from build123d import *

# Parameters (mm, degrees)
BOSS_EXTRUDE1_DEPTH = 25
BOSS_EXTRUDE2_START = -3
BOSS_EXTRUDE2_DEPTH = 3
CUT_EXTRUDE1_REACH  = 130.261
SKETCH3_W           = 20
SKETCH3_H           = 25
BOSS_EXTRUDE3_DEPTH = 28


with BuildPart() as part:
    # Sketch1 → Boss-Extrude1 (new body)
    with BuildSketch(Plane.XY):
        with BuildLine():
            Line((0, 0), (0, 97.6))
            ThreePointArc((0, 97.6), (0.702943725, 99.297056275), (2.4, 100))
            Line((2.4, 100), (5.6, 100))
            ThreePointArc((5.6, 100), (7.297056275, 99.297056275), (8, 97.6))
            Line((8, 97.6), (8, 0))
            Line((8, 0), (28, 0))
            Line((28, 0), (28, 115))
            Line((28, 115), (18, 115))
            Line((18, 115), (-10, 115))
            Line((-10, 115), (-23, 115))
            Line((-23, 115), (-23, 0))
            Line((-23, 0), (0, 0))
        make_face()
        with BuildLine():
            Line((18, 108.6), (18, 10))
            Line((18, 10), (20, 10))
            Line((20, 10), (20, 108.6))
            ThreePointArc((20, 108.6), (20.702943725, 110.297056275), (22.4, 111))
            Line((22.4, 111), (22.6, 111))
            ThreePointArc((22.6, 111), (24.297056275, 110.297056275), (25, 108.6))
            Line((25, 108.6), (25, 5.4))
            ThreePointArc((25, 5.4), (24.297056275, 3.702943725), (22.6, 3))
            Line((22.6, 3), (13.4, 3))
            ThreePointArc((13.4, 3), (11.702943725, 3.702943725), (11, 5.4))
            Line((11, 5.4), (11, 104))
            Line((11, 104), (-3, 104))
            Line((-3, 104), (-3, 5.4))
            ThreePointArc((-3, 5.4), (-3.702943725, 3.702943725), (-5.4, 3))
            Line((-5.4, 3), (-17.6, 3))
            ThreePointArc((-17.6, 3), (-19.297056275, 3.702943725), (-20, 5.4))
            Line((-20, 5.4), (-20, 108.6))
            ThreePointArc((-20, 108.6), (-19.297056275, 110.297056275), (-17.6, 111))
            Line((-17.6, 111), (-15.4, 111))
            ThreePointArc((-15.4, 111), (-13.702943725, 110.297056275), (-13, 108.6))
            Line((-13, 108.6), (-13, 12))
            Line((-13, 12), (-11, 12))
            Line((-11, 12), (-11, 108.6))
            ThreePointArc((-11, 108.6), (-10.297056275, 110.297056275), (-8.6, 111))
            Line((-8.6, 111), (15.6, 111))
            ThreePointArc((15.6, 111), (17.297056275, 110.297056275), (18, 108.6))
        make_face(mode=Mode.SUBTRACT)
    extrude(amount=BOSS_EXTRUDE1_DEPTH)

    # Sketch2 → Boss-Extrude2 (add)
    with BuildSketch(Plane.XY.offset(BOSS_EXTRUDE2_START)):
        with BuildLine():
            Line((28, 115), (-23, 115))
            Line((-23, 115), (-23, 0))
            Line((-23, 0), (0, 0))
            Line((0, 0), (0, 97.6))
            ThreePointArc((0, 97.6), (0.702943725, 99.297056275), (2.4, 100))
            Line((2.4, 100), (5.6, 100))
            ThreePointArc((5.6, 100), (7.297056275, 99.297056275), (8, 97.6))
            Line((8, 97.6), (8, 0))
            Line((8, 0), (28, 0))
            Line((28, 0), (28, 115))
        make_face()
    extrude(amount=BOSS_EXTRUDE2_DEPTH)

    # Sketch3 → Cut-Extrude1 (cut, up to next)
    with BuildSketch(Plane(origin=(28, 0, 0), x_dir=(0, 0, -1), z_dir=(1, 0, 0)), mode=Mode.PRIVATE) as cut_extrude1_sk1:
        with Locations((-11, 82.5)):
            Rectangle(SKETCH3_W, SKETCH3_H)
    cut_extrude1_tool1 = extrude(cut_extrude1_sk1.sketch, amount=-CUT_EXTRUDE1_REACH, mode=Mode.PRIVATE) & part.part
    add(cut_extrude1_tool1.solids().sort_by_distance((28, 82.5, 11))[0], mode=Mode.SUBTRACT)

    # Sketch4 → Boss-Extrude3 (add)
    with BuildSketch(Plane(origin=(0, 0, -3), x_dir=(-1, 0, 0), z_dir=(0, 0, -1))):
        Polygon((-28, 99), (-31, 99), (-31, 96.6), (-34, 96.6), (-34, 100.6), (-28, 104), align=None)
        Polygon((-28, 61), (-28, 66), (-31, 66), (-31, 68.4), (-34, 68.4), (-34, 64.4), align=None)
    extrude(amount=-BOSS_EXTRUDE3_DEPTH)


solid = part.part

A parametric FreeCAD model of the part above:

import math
import FreeCAD as App
import Part
import Sketcher

doc = App.newDocument("Part")
body = doc.addObject("PartDesign::Body", "Body")

sketch1 = doc.addObject("Sketcher::SketchObject", "Sketch")
body.addObject(sketch1)
sketch1.AttachmentSupport = (doc.XY_Plane, [""])
sketch1.MapMode = "FlatFace"
sketch1.addGeometry(Part.LineSegment(App.Vector(0, 0, 0), App.Vector(0, 97.6, 0)), False)
sketch1.addGeometry(Part.ArcOfCircle(Part.Circle(App.Vector(2.4, 97.6, 0), App.Vector(0, 0, 1), 2.4), math.radians(90), math.radians(180)), False)
sketch1.addGeometry(Part.LineSegment(App.Vector(2.4, 100, 0), App.Vector(5.6, 100, 0)), False)
sketch1.addGeometry(Part.ArcOfCircle(Part.Circle(App.Vector(5.6, 97.6, 0), App.Vector(0, 0, 1), 2.4), math.radians(0), math.radians(90)), False)
sketch1.addGeometry(Part.LineSegment(App.Vector(8, 97.6, 0), App.Vector(8, 0, 0)), False)
sketch1.addGeometry(Part.LineSegment(App.Vector(8, 0, 0), App.Vector(28, 0, 0)), False)
sketch1.addGeometry(Part.LineSegment(App.Vector(28, 0, 0), App.Vector(28, 115, 0)), False)
sketch1.addGeometry(Part.LineSegment(App.Vector(28, 115, 0), App.Vector(-23, 115, 0)), False)
sketch1.addGeometry(Part.LineSegment(App.Vector(-23, 115, 0), App.Vector(-23, 0, 0)), False)
sketch1.addGeometry(Part.LineSegment(App.Vector(-23, 0, 0), App.Vector(0, 0, 0)), False)
sketch1.addGeometry(Part.ArcOfCircle(Part.Circle(App.Vector(15.6, 108.6, 0), App.Vector(0, 0, 1), 2.4), math.radians(0), math.radians(90)), False)
sketch1.addGeometry(Part.LineSegment(App.Vector(18, 108.6, 0), App.Vector(18, 10, 0)), False)
sketch1.addGeometry(Part.LineSegment(App.Vector(18, 10, 0), App.Vector(20, 10, 0)), False)
sketch1.addGeometry(Part.LineSegment(App.Vector(20, 10, 0), App.Vector(20, 108.6, 0)), False)
sketch1.addGeometry(Part.ArcOfCircle(Part.Circle(App.Vector(22.4, 108.6, 0), App.Vector(0, 0, 1), 2.4), math.radians(90), math.radians(180)), False)
sketch1.addGeometry(Part.LineSegment(App.Vector(22.4, 111, 0), App.Vector(22.6, 111, 0)), False)
sketch1.addGeometry(Part.ArcOfCircle(Part.Circle(App.Vector(22.6, 108.6, 0), App.Vector(0, 0, 1), 2.4), math.radians(0), math.radians(90)), False)
sketch1.addGeometry(Part.LineSegment(App.Vector(25, 108.6, 0), App.Vector(25, 5.4, 0)), False)
sketch1.addGeometry(Part.ArcOfCircle(Part.Circle(App.Vector(22.6, 5.4, 0), App.Vector(0, 0, 1), 2.4), math.radians(-90), math.radians(0)), False)
sketch1.addGeometry(Part.LineSegment(App.Vector(22.6, 3, 0), App.Vector(13.4, 3, 0)), False)
sketch1.addGeometry(Part.ArcOfCircle(Part.Circle(App.Vector(13.4, 5.4, 0), App.Vector(0, 0, 1), 2.4), math.radians(180), math.radians(270)), False)
sketch1.addGeometry(Part.LineSegment(App.Vector(11, 5.4, 0), App.Vector(11, 104, 0)), False)
sketch1.addGeometry(Part.LineSegment(App.Vector(11, 104, 0), App.Vector(-3, 104, 0)), False)
sketch1.addGeometry(Part.LineSegment(App.Vector(-3, 104, 0), App.Vector(-3, 5.4, 0)), False)
sketch1.addGeometry(Part.ArcOfCircle(Part.Circle(App.Vector(-5.4, 5.4, 0), App.Vector(0, 0, 1), 2.4), math.radians(-90), math.radians(0)), False)
sketch1.addGeometry(Part.LineSegment(App.Vector(-5.4, 3, 0), App.Vector(-17.6, 3, 0)), False)
sketch1.addGeometry(Part.ArcOfCircle(Part.Circle(App.Vector(-17.6, 5.4, 0), App.Vector(0, 0, 1), 2.4), math.radians(180), math.radians(270)), False)
sketch1.addGeometry(Part.LineSegment(App.Vector(-20, 5.4, 0), App.Vector(-20, 108.6, 0)), False)
sketch1.addGeometry(Part.ArcOfCircle(Part.Circle(App.Vector(-17.6, 108.6, 0), App.Vector(0, 0, 1), 2.4), math.radians(90), math.radians(180)), False)
sketch1.addGeometry(Part.LineSegment(App.Vector(-17.6, 111, 0), App.Vector(-15.4, 111, 0)), False)
sketch1.addGeometry(Part.ArcOfCircle(Part.Circle(App.Vector(-15.4, 108.6, 0), App.Vector(0, 0, 1), 2.4), math.radians(0), math.radians(90)), False)
sketch1.addGeometry(Part.LineSegment(App.Vector(-13, 108.6, 0), App.Vector(-13, 12, 0)), False)
sketch1.addGeometry(Part.LineSegment(App.Vector(-13, 12, 0), App.Vector(-11, 12, 0)), False)
sketch1.addGeometry(Part.LineSegment(App.Vector(-11, 12, 0), App.Vector(-11, 108.6, 0)), False)
sketch1.addGeometry(Part.ArcOfCircle(Part.Circle(App.Vector(-8.6, 108.6, 0), App.Vector(0, 0, 1), 2.4), math.radians(90), math.radians(180)), False)
sketch1.addGeometry(Part.LineSegment(App.Vector(-8.6, 111, 0), App.Vector(15.6, 111, 0)), False)
sketch1.addConstraint(Sketcher.Constraint("Tangent", 0, 2, 1, 2))
sketch1.addConstraint(Sketcher.Constraint("Tangent", 1, 1, 2, 1))
sketch1.addConstraint(Sketcher.Constraint("Tangent", 2, 2, 3, 2))
sketch1.addConstraint(Sketcher.Constraint("Tangent", 3, 1, 4, 1))
sketch1.addConstraint(Sketcher.Constraint("Coincident", 4, 2, 5, 1))
sketch1.addConstraint(Sketcher.Constraint("Coincident", 5, 2, 6, 1))
sketch1.addConstraint(Sketcher.Constraint("Coincident", 6, 2, 7, 1))
sketch1.addConstraint(Sketcher.Constraint("Coincident", 7, 2, 8, 1))
sketch1.addConstraint(Sketcher.Constraint("Coincident", 8, 2, 9, 1))
sketch1.addConstraint(Sketcher.Constraint("Coincident", 9, 2, 0, 1))
sketch1.addConstraint(Sketcher.Constraint("Tangent", 10, 1, 11, 1))
sketch1.addConstraint(Sketcher.Constraint("Coincident", 11, 2, 12, 1))
sketch1.addConstraint(Sketcher.Constraint("Coincident", 12, 2, 13, 1))
sketch1.addConstraint(Sketcher.Constraint("Tangent", 13, 2, 14, 2))
sketch1.addConstraint(Sketcher.Constraint("Tangent", 14, 1, 15, 1))
sketch1.addConstraint(Sketcher.Constraint("Tangent", 15, 2, 16, 2))
sketch1.addConstraint(Sketcher.Constraint("Tangent", 16, 1, 17, 1))
sketch1.addConstraint(Sketcher.Constraint("Tangent", 17, 2, 18, 2))
sketch1.addConstraint(Sketcher.Constraint("Tangent", 18, 1, 19, 1))
sketch1.addConstraint(Sketcher.Constraint("Tangent", 19, 2, 20, 2))
sketch1.addConstraint(Sketcher.Constraint("Tangent", 20, 1, 21, 1))
sketch1.addConstraint(Sketcher.Constraint("Coincident", 21, 2, 22, 1))
sketch1.addConstraint(Sketcher.Constraint("Coincident", 22, 2, 23, 1))
sketch1.addConstraint(Sketcher.Constraint("Tangent", 23, 2, 24, 2))
sketch1.addConstraint(Sketcher.Constraint("Tangent", 24, 1, 25, 1))
sketch1.addConstraint(Sketcher.Constraint("Tangent", 25, 2, 26, 2))
sketch1.addConstraint(Sketcher.Constraint("Tangent", 26, 1, 27, 1))
sketch1.addConstraint(Sketcher.Constraint("Tangent", 27, 2, 28, 2))
sketch1.addConstraint(Sketcher.Constraint("Tangent", 28, 1, 29, 1))
sketch1.addConstraint(Sketcher.Constraint("Tangent", 29, 2, 30, 2))
sketch1.addConstraint(Sketcher.Constraint("Tangent", 30, 1, 31, 1))
sketch1.addConstraint(Sketcher.Constraint("Coincident", 31, 2, 32, 1))
sketch1.addConstraint(Sketcher.Constraint("Coincident", 32, 2, 33, 1))
sketch1.addConstraint(Sketcher.Constraint("Tangent", 33, 2, 34, 2))
sketch1.addConstraint(Sketcher.Constraint("Tangent", 34, 1, 35, 1))
sketch1.addConstraint(Sketcher.Constraint("Tangent", 35, 2, 10, 2))
sketch1.addConstraint(Sketcher.Constraint("Vertical", 0))
sketch1.addConstraint(Sketcher.Constraint("Horizontal", 2))
sketch1.addConstraint(Sketcher.Constraint("Vertical", 4))
sketch1.addConstraint(Sketcher.Constraint("Horizontal", 5))
sketch1.addConstraint(Sketcher.Constraint("Vertical", 6))
sketch1.addConstraint(Sketcher.Constraint("Horizontal", 7))
sketch1.addConstraint(Sketcher.Constraint("Vertical", 8))
sketch1.addConstraint(Sketcher.Constraint("Horizontal", 9))
sketch1.addConstraint(Sketcher.Constraint("Vertical", 11))
sketch1.addConstraint(Sketcher.Constraint("Horizontal", 12))
sketch1.addConstraint(Sketcher.Constraint("Vertical", 13))
sketch1.addConstraint(Sketcher.Constraint("Horizontal", 15))
sketch1.addConstraint(Sketcher.Constraint("Vertical", 17))
sketch1.addConstraint(Sketcher.Constraint("Horizontal", 19))
sketch1.addConstraint(Sketcher.Constraint("Vertical", 21))
sketch1.addConstraint(Sketcher.Constraint("Horizontal", 22))
sketch1.addConstraint(Sketcher.Constraint("Vertical", 23))
sketch1.addConstraint(Sketcher.Constraint("Horizontal", 25))
sketch1.addConstraint(Sketcher.Constraint("Vertical", 27))
sketch1.addConstraint(Sketcher.Constraint("Horizontal", 29))
sketch1.addConstraint(Sketcher.Constraint("Vertical", 31))
sketch1.addConstraint(Sketcher.Constraint("Horizontal", 32))
sketch1.addConstraint(Sketcher.Constraint("Vertical", 33))
sketch1.addConstraint(Sketcher.Constraint("Horizontal", 35))
sketch1.addConstraint(Sketcher.Constraint("Coincident", 9, 2, -1, 1))
sketch1.addConstraint(Sketcher.Constraint("Equal", 1, 3))
sketch1.addConstraint(Sketcher.Constraint("Equal", 3, 10))
sketch1.addConstraint(Sketcher.Constraint("Equal", 10, 14))
sketch1.addConstraint(Sketcher.Constraint("Equal", 14, 16))
sketch1.addConstraint(Sketcher.Constraint("Equal", 16, 18))
sketch1.addConstraint(Sketcher.Constraint("Equal", 18, 20))
sketch1.addConstraint(Sketcher.Constraint("Equal", 20, 24))
sketch1.addConstraint(Sketcher.Constraint("Equal", 24, 26))
sketch1.addConstraint(Sketcher.Constraint("Equal", 26, 28))
sketch1.addConstraint(Sketcher.Constraint("Equal", 28, 30))
sketch1.addConstraint(Sketcher.Constraint("Equal", 30, 34))
sketch1.addConstraint(Sketcher.Constraint("Symmetric", 13, 2, 27, 2, -2))
sketch1.addConstraint(Sketcher.Constraint("PointOnObject", 4, 2, -1))
sketch1.addConstraint(Sketcher.Constraint("Horizontal", 10, 3, 14, 3))
sketch1.addConstraint(Sketcher.Constraint("Horizontal", 20, 3, 24, 3))
sketch1.addConstraint(Sketcher.Constraint("Equal", 12, 32))
sketch1.addConstraint(Sketcher.Constraint("Equal", 13, 21))
sketch1.addConstraint(Sketcher.Constraint("Radius", 1, 2.4))
sketch1.addConstraint(Sketcher.Constraint("DistanceX", 5, 1, 5, 2, 20.0))
sketch1.addConstraint(Sketcher.Constraint("DistanceX", 7, 2, 7, 1, 51.0))
sketch1.addConstraint(Sketcher.Constraint("DistanceX", 9, 1, 9, 2, 23.0))
sketch1.addConstraint(Sketcher.Constraint("DistanceX", 12, 1, 12, 2, 2.0))
sketch1.addConstraint(Sketcher.Constraint("DistanceX", 22, 2, 22, 1, 14.0))
sketch1.addConstraint(Sketcher.Constraint("DistanceY", 6, 1, 6, 2, 115.0))
sketch1.addConstraint(Sketcher.Constraint("DistanceX", 15, 1, 15, 2, 0.2))
sketch1.addConstraint(Sketcher.Constraint("DistanceX", 19, 2, 19, 1, 9.2))
sketch1.addConstraint(Sketcher.Constraint("DistanceX", 25, 2, 25, 1, 12.2))
sketch1.addConstraint(Sketcher.Constraint("DistanceX", 29, 1, 29, 2, 2.2))
sketch1.addConstraint(Sketcher.Constraint("DistanceY", 0, 1, 0, 2, 97.6))
sketch1.addConstraint(Sketcher.Constraint("DistanceY", 11, 2, 11, 1, 98.6))
sketch1.addConstraint(Sketcher.Constraint("DistanceY", 17, 2, 17, 1, 103.2))
sketch1.addConstraint(Sketcher.Constraint("DistanceY", 31, 2, 31, 1, 96.6))
sketch1.addConstraint(Sketcher.Constraint("DistanceY", -1, 1, 11, 2, 10.0))
pad1 = doc.addObject("PartDesign::Pad", "Pad")
body.addObject(pad1)
pad1.Profile = sketch1
pad1.Length = 25

sketch2 = doc.addObject("Sketcher::SketchObject", "Sketch001")
body.addObject(sketch2)
sketch2.AttachmentSupport = (doc.XY_Plane, [""])
sketch2.MapMode = "FlatFace"
sketch2.AttachmentOffset = App.Placement(App.Vector(0, 0, -3), App.Rotation())
sketch2.addGeometry(Part.LineSegment(App.Vector(28, 115, 0), App.Vector(-23, 115, 0)), False)
sketch2.addGeometry(Part.LineSegment(App.Vector(-23, 115, 0), App.Vector(-23, 0, 0)), False)
sketch2.addGeometry(Part.LineSegment(App.Vector(-23, 0, 0), App.Vector(0, 0, 0)), False)
sketch2.addGeometry(Part.LineSegment(App.Vector(0, 0, 0), App.Vector(0, 97.6, 0)), False)
sketch2.addGeometry(Part.ArcOfCircle(Part.Circle(App.Vector(2.4, 97.6, 0), App.Vector(0, 0, 1), 2.4), math.radians(90), math.radians(180)), False)
sketch2.addGeometry(Part.LineSegment(App.Vector(2.4, 100, 0), App.Vector(5.6, 100, 0)), False)
sketch2.addGeometry(Part.ArcOfCircle(Part.Circle(App.Vector(5.6, 97.6, 0), App.Vector(0, 0, 1), 2.4), math.radians(0), math.radians(90)), False)
sketch2.addGeometry(Part.LineSegment(App.Vector(8, 97.6, 0), App.Vector(8, 0, 0)), False)
sketch2.addGeometry(Part.LineSegment(App.Vector(8, 0, 0), App.Vector(28, 0, 0)), False)
sketch2.addGeometry(Part.LineSegment(App.Vector(28, 0, 0), App.Vector(28, 115, 0)), False)
sketch2.addConstraint(Sketcher.Constraint("Coincident", 0, 2, 1, 1))
sketch2.addConstraint(Sketcher.Constraint("Coincident", 1, 2, 2, 1))
sketch2.addConstraint(Sketcher.Constraint("Coincident", 2, 2, 3, 1))
sketch2.addConstraint(Sketcher.Constraint("Tangent", 3, 2, 4, 2))
sketch2.addConstraint(Sketcher.Constraint("Tangent", 4, 1, 5, 1))
sketch2.addConstraint(Sketcher.Constraint("Tangent", 5, 2, 6, 2))
sketch2.addConstraint(Sketcher.Constraint("Tangent", 6, 1, 7, 1))
sketch2.addConstraint(Sketcher.Constraint("Coincident", 7, 2, 8, 1))
sketch2.addConstraint(Sketcher.Constraint("Coincident", 8, 2, 9, 1))
sketch2.addConstraint(Sketcher.Constraint("Coincident", 9, 2, 0, 1))
sketch2.addConstraint(Sketcher.Constraint("Horizontal", 0))
sketch2.addConstraint(Sketcher.Constraint("Vertical", 1))
sketch2.addConstraint(Sketcher.Constraint("Horizontal", 2))
sketch2.addConstraint(Sketcher.Constraint("Vertical", 3))
sketch2.addConstraint(Sketcher.Constraint("Horizontal", 5))
sketch2.addConstraint(Sketcher.Constraint("Vertical", 7))
sketch2.addConstraint(Sketcher.Constraint("Horizontal", 8))
sketch2.addConstraint(Sketcher.Constraint("Vertical", 9))
sketch2.addConstraint(Sketcher.Constraint("Coincident", 2, 2, -1, 1))
sketch2.addConstraint(Sketcher.Constraint("Equal", 4, 6))
sketch2.addConstraint(Sketcher.Constraint("PointOnObject", 7, 2, -1))
sketch2.addConstraint(Sketcher.Constraint("Radius", 4, 2.4))
sketch2.addConstraint(Sketcher.Constraint("DistanceX", 0, 2, 0, 1, 51.0))
sketch2.addConstraint(Sketcher.Constraint("DistanceX", 2, 1, 2, 2, 23.0))
sketch2.addConstraint(Sketcher.Constraint("DistanceX", 8, 1, 8, 2, 20.0))
sketch2.addConstraint(Sketcher.Constraint("DistanceY", 1, 2, 1, 1, 115.0))
sketch2.addConstraint(Sketcher.Constraint("DistanceY", 3, 1, 3, 2, 97.6))
pad2 = doc.addObject("PartDesign::Pad", "Pad001")
body.addObject(pad2)
pad2.Profile = sketch2
pad2.Length = 3

sketch3 = doc.addObject("Sketcher::SketchObject", "Sketch002")
body.addObject(sketch3)
sketch3.AttachmentSupport = (doc.YZ_Plane, [""])
sketch3.MapMode = "FlatFace"
sketch3.AttachmentOffset = App.Placement(App.Vector(0, 0, 28), App.Rotation())
sketch3.addGeometry(Part.LineSegment(App.Vector(95, 21, 0), App.Vector(70, 21, 0)), False)
sketch3.addGeometry(Part.LineSegment(App.Vector(70, 21, 0), App.Vector(70, 1, 0)), False)
sketch3.addGeometry(Part.LineSegment(App.Vector(70, 1, 0), App.Vector(95, 1, 0)), False)
sketch3.addGeometry(Part.LineSegment(App.Vector(95, 1, 0), App.Vector(95, 21, 0)), False)
sketch3.addConstraint(Sketcher.Constraint("Coincident", 0, 2, 1, 1))
sketch3.addConstraint(Sketcher.Constraint("Coincident", 1, 2, 2, 1))
sketch3.addConstraint(Sketcher.Constraint("Coincident", 2, 2, 3, 1))
sketch3.addConstraint(Sketcher.Constraint("Coincident", 3, 2, 0, 1))
sketch3.addConstraint(Sketcher.Constraint("Horizontal", 0))
sketch3.addConstraint(Sketcher.Constraint("Vertical", 1))
sketch3.addConstraint(Sketcher.Constraint("Horizontal", 2))
sketch3.addConstraint(Sketcher.Constraint("Vertical", 3))
sketch3.addConstraint(Sketcher.Constraint("DistanceX", 0, 2, 0, 1, 25.0))
sketch3.addConstraint(Sketcher.Constraint("DistanceY", 1, 2, 1, 1, 20.0))
sketch3.addConstraint(Sketcher.Constraint("DistanceX", -1, 1, 0, 2, 70.0))
sketch3.addConstraint(Sketcher.Constraint("DistanceY", -1, 1, 0, 2, 21.0))
pocket1 = doc.addObject("PartDesign::Pocket", "Pocket")
body.addObject(pocket1)
pocket1.Profile = sketch3
pocket1.Type = "UpToFirst"

sketch4 = doc.addObject("Sketcher::SketchObject", "Sketch003")
body.addObject(sketch4)
sketch4.AttachmentSupport = (doc.XY_Plane, [""])
sketch4.MapMode = "FlatFace"
sketch4.AttachmentOffset = App.Placement(App.Vector(0, 0, -3), App.Rotation())
sketch4.addGeometry(Part.LineSegment(App.Vector(31, 99, 0), App.Vector(28, 99, 0)), False)
sketch4.addGeometry(Part.LineSegment(App.Vector(28, 99, 0), App.Vector(28, 104, 0)), False)
sketch4.addGeometry(Part.LineSegment(App.Vector(28, 104, 0), App.Vector(34, 100.6, 0)), False)
sketch4.addGeometry(Part.LineSegment(App.Vector(34, 100.6, 0), App.Vector(34, 96.6, 0)), False)
sketch4.addGeometry(Part.LineSegment(App.Vector(34, 96.6, 0), App.Vector(31, 96.6, 0)), False)
sketch4.addGeometry(Part.LineSegment(App.Vector(31, 96.6, 0), App.Vector(31, 99, 0)), False)
sketch4.addGeometry(Part.LineSegment(App.Vector(28, 61, 0), App.Vector(28, 66, 0)), False)
sketch4.addGeometry(Part.LineSegment(App.Vector(28, 66, 0), App.Vector(31, 66, 0)), False)
sketch4.addGeometry(Part.LineSegment(App.Vector(31, 66, 0), App.Vector(31, 68.4, 0)), False)
sketch4.addGeometry(Part.LineSegment(App.Vector(31, 68.4, 0), App.Vector(34, 68.4, 0)), False)
sketch4.addGeometry(Part.LineSegment(App.Vector(34, 68.4, 0), App.Vector(34, 64.4, 0)), False)
sketch4.addGeometry(Part.LineSegment(App.Vector(34, 64.4, 0), App.Vector(28, 61, 0)), False)
sketch4.addConstraint(Sketcher.Constraint("Coincident", 0, 2, 1, 1))
sketch4.addConstraint(Sketcher.Constraint("Coincident", 1, 2, 2, 1))
sketch4.addConstraint(Sketcher.Constraint("Coincident", 2, 2, 3, 1))
sketch4.addConstraint(Sketcher.Constraint("Coincident", 3, 2, 4, 1))
sketch4.addConstraint(Sketcher.Constraint("Coincident", 4, 2, 5, 1))
sketch4.addConstraint(Sketcher.Constraint("Coincident", 5, 2, 0, 1))
sketch4.addConstraint(Sketcher.Constraint("Coincident", 6, 2, 7, 1))
sketch4.addConstraint(Sketcher.Constraint("Coincident", 7, 2, 8, 1))
sketch4.addConstraint(Sketcher.Constraint("Coincident", 8, 2, 9, 1))
sketch4.addConstraint(Sketcher.Constraint("Coincident", 9, 2, 10, 1))
sketch4.addConstraint(Sketcher.Constraint("Coincident", 10, 2, 11, 1))
sketch4.addConstraint(Sketcher.Constraint("Coincident", 11, 2, 6, 1))
sketch4.addConstraint(Sketcher.Constraint("Horizontal", 0))
sketch4.addConstraint(Sketcher.Constraint("Vertical", 1))
sketch4.addConstraint(Sketcher.Constraint("Vertical", 3))
sketch4.addConstraint(Sketcher.Constraint("Horizontal", 4))
sketch4.addConstraint(Sketcher.Constraint("Vertical", 5))
sketch4.addConstraint(Sketcher.Constraint("Vertical", 6))
sketch4.addConstraint(Sketcher.Constraint("Horizontal", 7))
sketch4.addConstraint(Sketcher.Constraint("Vertical", 8))
sketch4.addConstraint(Sketcher.Constraint("Horizontal", 9))
sketch4.addConstraint(Sketcher.Constraint("Vertical", 10))
sketch4.addConstraint(Sketcher.Constraint("Vertical", 1, 2, 6, 2))
sketch4.addConstraint(Sketcher.Constraint("Vertical", 5, 2, 7, 2))
sketch4.addConstraint(Sketcher.Constraint("Vertical", 3, 2, 9, 2))
sketch4.addConstraint(Sketcher.Constraint("Equal", 0, 4))
sketch4.addConstraint(Sketcher.Constraint("Equal", 1, 6))
sketch4.addConstraint(Sketcher.Constraint("Equal", 5, 8))
sketch4.addConstraint(Sketcher.Constraint("Equal", 3, 10))
sketch4.addConstraint(Sketcher.Constraint("DistanceX", 0, 2, 0, 1, 3.0))
sketch4.addConstraint(Sketcher.Constraint("DistanceY", 1, 1, 1, 2, 5.0))
sketch4.addConstraint(Sketcher.Constraint("DistanceY", 3, 2, 3, 1, 4.0))
sketch4.addConstraint(Sketcher.Constraint("DistanceY", 5, 1, 5, 2, 2.4))
sketch4.addConstraint(Sketcher.Constraint("DistanceX", -1, 1, 0, 2, 28.0))
sketch4.addConstraint(Sketcher.Constraint("DistanceY", -1, 1, 0, 2, 99.0))
sketch4.addConstraint(Sketcher.Constraint("DistanceY", -1, 1, 6, 2, 66.0))
pad3 = doc.addObject("PartDesign::Pad", "Pad002")
body.addObject(pad3)
pad3.Profile = sketch4
pad3.Length = 28

doc.recompute()
